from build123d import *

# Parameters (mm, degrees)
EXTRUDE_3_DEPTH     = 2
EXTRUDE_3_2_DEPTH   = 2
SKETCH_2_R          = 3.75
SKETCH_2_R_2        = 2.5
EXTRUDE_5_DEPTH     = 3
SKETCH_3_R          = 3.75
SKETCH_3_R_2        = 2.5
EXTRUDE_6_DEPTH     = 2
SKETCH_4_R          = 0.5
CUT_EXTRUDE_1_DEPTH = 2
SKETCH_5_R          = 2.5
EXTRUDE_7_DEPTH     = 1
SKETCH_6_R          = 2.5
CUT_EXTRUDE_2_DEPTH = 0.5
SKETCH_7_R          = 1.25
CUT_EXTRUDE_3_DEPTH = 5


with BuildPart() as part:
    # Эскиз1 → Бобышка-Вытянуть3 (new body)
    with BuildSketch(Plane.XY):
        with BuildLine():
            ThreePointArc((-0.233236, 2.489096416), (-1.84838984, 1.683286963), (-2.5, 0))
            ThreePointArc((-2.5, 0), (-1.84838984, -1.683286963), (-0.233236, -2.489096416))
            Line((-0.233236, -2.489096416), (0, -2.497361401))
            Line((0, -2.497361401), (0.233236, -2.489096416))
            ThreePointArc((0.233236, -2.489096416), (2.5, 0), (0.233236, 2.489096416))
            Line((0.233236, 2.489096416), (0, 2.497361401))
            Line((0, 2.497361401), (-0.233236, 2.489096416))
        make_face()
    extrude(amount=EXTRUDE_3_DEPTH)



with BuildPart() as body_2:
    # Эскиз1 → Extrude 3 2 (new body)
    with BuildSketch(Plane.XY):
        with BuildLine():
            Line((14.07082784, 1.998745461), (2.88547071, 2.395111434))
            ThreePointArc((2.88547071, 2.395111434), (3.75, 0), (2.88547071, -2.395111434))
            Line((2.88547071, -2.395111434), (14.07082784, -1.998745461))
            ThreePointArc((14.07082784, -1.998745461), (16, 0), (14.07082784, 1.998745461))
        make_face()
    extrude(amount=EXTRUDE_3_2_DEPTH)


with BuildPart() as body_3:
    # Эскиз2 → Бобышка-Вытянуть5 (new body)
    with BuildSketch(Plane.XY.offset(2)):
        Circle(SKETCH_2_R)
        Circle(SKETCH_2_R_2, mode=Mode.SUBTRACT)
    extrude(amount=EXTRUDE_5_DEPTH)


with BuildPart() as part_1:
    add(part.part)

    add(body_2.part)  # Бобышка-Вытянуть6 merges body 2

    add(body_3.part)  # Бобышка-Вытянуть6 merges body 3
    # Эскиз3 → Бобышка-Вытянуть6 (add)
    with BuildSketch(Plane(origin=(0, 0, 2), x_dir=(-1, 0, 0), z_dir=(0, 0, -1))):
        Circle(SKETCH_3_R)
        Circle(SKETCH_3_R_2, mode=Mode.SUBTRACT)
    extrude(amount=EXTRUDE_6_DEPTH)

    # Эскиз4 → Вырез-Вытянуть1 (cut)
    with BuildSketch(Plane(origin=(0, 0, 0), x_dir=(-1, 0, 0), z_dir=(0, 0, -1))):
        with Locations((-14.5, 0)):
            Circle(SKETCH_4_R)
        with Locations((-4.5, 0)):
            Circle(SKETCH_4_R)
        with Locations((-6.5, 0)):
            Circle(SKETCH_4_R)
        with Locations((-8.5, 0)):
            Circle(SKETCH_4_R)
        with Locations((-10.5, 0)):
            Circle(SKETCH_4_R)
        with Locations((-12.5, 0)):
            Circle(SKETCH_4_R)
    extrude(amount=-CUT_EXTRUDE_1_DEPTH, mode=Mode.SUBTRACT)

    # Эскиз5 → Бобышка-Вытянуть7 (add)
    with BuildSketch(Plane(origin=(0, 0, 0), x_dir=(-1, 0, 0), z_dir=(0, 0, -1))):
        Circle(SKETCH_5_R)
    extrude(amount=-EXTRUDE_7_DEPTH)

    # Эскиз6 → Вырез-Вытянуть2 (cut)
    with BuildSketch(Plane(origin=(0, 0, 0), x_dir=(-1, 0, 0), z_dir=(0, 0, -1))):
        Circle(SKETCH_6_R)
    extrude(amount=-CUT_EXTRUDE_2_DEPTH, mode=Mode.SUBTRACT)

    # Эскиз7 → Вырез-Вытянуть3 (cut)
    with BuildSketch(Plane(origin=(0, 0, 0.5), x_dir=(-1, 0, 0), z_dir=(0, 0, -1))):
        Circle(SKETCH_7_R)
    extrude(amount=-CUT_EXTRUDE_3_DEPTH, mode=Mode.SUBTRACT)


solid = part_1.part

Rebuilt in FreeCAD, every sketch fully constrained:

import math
import FreeCAD as App
import Part
import Sketcher
Q = App.Units.Quantity

doc = App.newDocument("Part")
body = doc.addObject("PartDesign::Body", "Body")

# Sketch on XY plane
sketch1 = doc.addObject("Sketcher::SketchObject", "Sketch")
body.addObject(sketch1)
sketch1.AttachmentSupport = (doc.XY_Plane, [""])
sketch1.MapMode = "FlatFace"
sketch1.addGeometry([
    Part.ArcOfCircle(Part.Circle(App.Vector(0, 0, 0), App.Vector(0, 0, 1), 2.5), math.radians(95), math.radians(180)),  # 0
    Part.ArcOfCircle(Part.Circle(App.Vector(0, 0, 0), App.Vector(0, 0, 1), 2.5), math.radians(180), math.radians(265)),  # 1
    Part.LineSegment(App.Vector(-0.23, -2.49, 0), App.Vector(0, -2.5, 0)),  # 2
    Part.LineSegment(App.Vector(0, -2.5, 0), App.Vector(0.23, -2.49, 0)),  # 3
    Part.ArcOfCircle(Part.Circle(App.Vector(0, 0, 0), App.Vector(0, 0, 1), 2.5), math.radians(-85), math.radians(85)),  # 4
    Part.LineSegment(App.Vector(0.23, 2.49, 0), App.Vector(0, 2.5, 0)),  # 5
    Part.LineSegment(App.Vector(0, 2.5, 0), App.Vector(-0.23, 2.49, 0)),  # 6
], False)
sketch1.addConstraint([
    Sketcher.Constraint("Tangent", 0, 2, 1, 1),
    Sketcher.Constraint("Coincident", 1, 2, 2, 1),
    Sketcher.Constraint("Coincident", 2, 2, 3, 1),
    Sketcher.Constraint("Coincident", 3, 2, 4, 1),
    Sketcher.Constraint("Coincident", 4, 2, 5, 1),
    Sketcher.Constraint("Coincident", 5, 2, 6, 1),
    Sketcher.Constraint("Coincident", 6, 2, 0, 1),
    Sketcher.Constraint("Coincident", 0, 3, -1, 1),
    Sketcher.Constraint("Coincident", 4, 3, -1, 1),
    Sketcher.Constraint("Equal", 0, 1),
    Sketcher.Constraint("Equal", 1, 4),
    Sketcher.Constraint("Symmetric", 2, 2, 5, 2, -1, 1),
    Sketcher.Constraint("PointOnObject", 0, 2, -1),
    Sketcher.Constraint("PointOnObject", 2, 2, -2),
    Sketcher.Constraint("Parallel", 2, 5),
    Sketcher.Constraint("Parallel", 3, 6),
    Sketcher.Constraint("Horizontal", 1, 2, 3, 2),
    Sketcher.Constraint("Radius", 0, Q("2.5 mm")),
    Sketcher.Constraint("DistanceY", 2, 2, -1, 1, Q("2.497361 mm")),
    Sketcher.Constraint("Distance", 2, Q("0.233382 mm")),
])
pad1 = doc.addObject("PartDesign::Pad", "Pad")
body.addObject(pad1)
pad1.Profile = sketch1
pad1.Length = 2
body2 = doc.addObject("PartDesign::Body", "Body001")

# Sketch on XY plane
sketch2 = doc.addObject("Sketcher::SketchObject", "Sketch001")
body2.addObject(sketch2)
sketch2.AttachmentSupport = (doc.getObject("XY_Plane001"), [""])
sketch2.MapMode = "FlatFace"
sketch2.addGeometry([
    Part.LineSegment(App.Vector(14.1, 2, 0), App.Vector(2.9, 2.4, 0)),
    Part.ArcOfCircle(Part.Circle(App.Vector(0, 0, 0), App.Vector(0, 0, 1), 3.8), math.radians(-40), math.radians(40)),
    Part.LineSegment(App.Vector(2.9, -2.4, 0), App.Vector(14.1, -2, 0)),
    Part.ArcOfCircle(Part.Circle(App.Vector(14, 0, 0), App.Vector(0, 0, 1), 2), math.radians(-88), math.radians(88)),
], False)
sketch2.addConstraint([
    Sketcher.Constraint("Coincident", 0, 2, 1, 2),
    Sketcher.Constraint("Coincident", 1, 1, 2, 1),
    Sketcher.Constraint("Tangent", 2, 2, 3, 1),
    Sketcher.Constraint("Tangent", 3, 2, 0, 1),
    Sketcher.Constraint("Coincident", 1, 3, -1, 1),
    Sketcher.Constraint("Symmetric", 2, 2, 3, 2, -1),
    Sketcher.Constraint("Radius", 3, Q("2 mm")),
    Sketcher.Constraint("Radius", 1, Q("3.75 mm")),
    Sketcher.Constraint("DistanceX", -1, 1, 3, 3, Q("14 mm")),
    Sketcher.Constraint("DistanceX", -1, 1, 0, 2, Q("2.885471 mm")),
])
pad2 = doc.addObject("PartDesign::Pad", "Pad001")
body2.addObject(pad2)
pad2.Profile = sketch2
pad2.Length = 2
body3 = doc.addObject("PartDesign::Body", "Body002")

# Sketch on XY plane
sketch3 = doc.addObject("Sketcher::SketchObject", "Sketch002")
body3.addObject(sketch3)
sketch3.AttachmentSupport = (doc.getObject("XY_Plane002"), [""])
sketch3.MapMode = "FlatFace"
sketch3.AttachmentOffset = App.Placement(App.Vector(0, 0, 2), App.Rotation())
sketch3.addGeometry([
    Part.Circle(App.Vector(0, 0, 0), App.Vector(0, 0, 1), 3.8),
    Part.Circle(App.Vector(0, 0, 0), App.Vector(0, 0, 1), 2.5),
], False)
sketch3.addConstraint([
    Sketcher.Constraint("Coincident", 0, 3, -1, 1),
    Sketcher.Constraint("Coincident", 1, 3, -1, 1),
    Sketcher.Constraint("Diameter", 1, Q("5 mm")),
    Sketcher.Constraint("Diameter", 0, Q("7.5 mm")),
])
pad3 = doc.addObject("PartDesign::Pad", "Pad002")
body3.addObject(pad3)
pad3.Profile = sketch3
pad3.Length = 3
body.AllowCompound = True
doc.recompute()

boolean = doc.addObject("PartDesign::Boolean", "Boolean")
body.addObject(boolean)
boolean.Type = "Fuse"
boolean.addObjects([body2])
doc.recompute()

boolean2 = doc.addObject("PartDesign::Boolean", "Boolean001")
body.addObject(boolean2)
boolean2.Type = "Fuse"
boolean2.addObjects([body3])

# Sketch on XY plane
sketch4 = doc.addObject("Sketcher::SketchObject", "Sketch003")
body.addObject(sketch4)
sketch4.AttachmentSupport = (doc.XY_Plane, [""])
sketch4.MapMode = "FlatFace"
sketch4.AttachmentOffset = App.Placement(App.Vector(0, 0, 2), App.Rotation())
sketch4.addGeometry([
    Part.Circle(App.Vector(0, 0, 0), App.Vector(0, 0, 1), 3.8),
    Part.Circle(App.Vector(0, 0, 0), App.Vector(0, 0, 1), 2.5),
], False)
sketch4.addConstraint([
    Sketcher.Constraint("Coincident", 0, 3, -1, 1),
    Sketcher.Constraint("Coincident", 1, 3, -1, 1),
    Sketcher.Constraint("Diameter", 1, Q("5 mm")),
    Sketcher.Constraint("Diameter", 0, Q("7.5 mm")),
])
pad4 = doc.addObject("PartDesign::Pad", "Pad003")
body.addObject(pad4)
pad4.Profile = sketch4
pad4.Length = 2
pad4.Reversed = True

# Sketch on XY plane
sketch5 = doc.addObject("Sketcher::SketchObject", "Sketch004")
body.addObject(sketch5)
sketch5.AttachmentSupport = (doc.XY_Plane, [""])
sketch5.MapMode = "FlatFace"
sketch5.addGeometry([
    Part.Circle(App.Vector(14.5, 0, 0), App.Vector(0, 0, 1), 0.5),  # 0
    Part.Circle(App.Vector(4.5, 0, 0), App.Vector(0, 0, 1), 0.5),  # 1
    Part.Circle(App.Vector(6.5, 0, 0), App.Vector(0, 0, 1), 0.5),  # 2
    Part.Circle(App.Vector(8.5, 0, 0), App.Vector(0, 0, 1), 0.5),  # 3
    Part.Circle(App.Vector(10.5, 0, 0), App.Vector(0, 0, 1), 0.5),  # 4
    Part.Circle(App.Vector(12.5, 0, 0), App.Vector(0, 0, 1), 0.5),  # 5
], False)
sketch5.addConstraint([
    Sketcher.Constraint("Equal", 0, 1),
    Sketcher.Constraint("Equal", 1, 2),
    Sketcher.Constraint("Equal", 2, 3),
    Sketcher.Constraint("Equal", 3, 4),
    Sketcher.Constraint("Equal", 4, 5),
    Sketcher.Constraint("PointOnObject", 0, 3, -1),
    Sketcher.Constraint("PointOnObject", 1, 3, -1),
    Sketcher.Constraint("PointOnObject", 2, 3, -1),
    Sketcher.Constraint("PointOnObject", 3, 3, -1),
    Sketcher.Constraint("PointOnObject", 4, 3, -1),
    Sketcher.Constraint("PointOnObject", 5, 3, -1),
    Sketcher.Constraint("Diameter", 0, Q("1 mm")),
    Sketcher.Constraint("DistanceX", 1, 3, 0, 3, Q("10 mm")),
    Sketcher.Constraint("DistanceX", 1, 3, 2, 3, Q("2 mm")),
    Sketcher.Constraint("DistanceX", 2, 3, 3, 3, Q("2 mm")),
    Sketcher.Constraint("DistanceX", 3, 3, 4, 3, Q("2 mm")),
    Sketcher.Constraint("DistanceX", 5, 3, 0, 3, Q("2 mm")),
    Sketcher.Constraint("DistanceX", -1, 1, 0, 3, Q("14.5 mm")),
])
pocket1 = doc.addObject("PartDesign::Pocket", "Pocket")
body.addObject(pocket1)
pocket1.Profile = sketch5
pocket1.Length = 2
pocket1.Reversed = True

# Sketch on XY plane
sketch6 = doc.addObject("Sketcher::SketchObject", "Sketch005")
body.addObject(sketch6)
sketch6.AttachmentSupport = (doc.XY_Plane, [""])
sketch6.MapMode = "FlatFace"
sketch6.addGeometry(Part.Circle(App.Vector(0, 0, 0), App.Vector(0, 0, 1), 2.5), False)
sketch6.addConstraint([
    Sketcher.Constraint("Coincident", 0, 3, -1, 1),
    Sketcher.Constraint("Diameter", 0, Q("5 mm")),
])
pad5 = doc.addObject("PartDesign::Pad", "Pad004")
body.addObject(pad5)
pad5.Profile = sketch6
pad5.Length = 1

# Sketch on XY plane
sketch7 = doc.addObject("Sketcher::SketchObject", "Sketch006")
body.addObject(sketch7)
sketch7.AttachmentSupport = (doc.XY_Plane, [""])
sketch7.MapMode = "FlatFace"
sketch7.addGeometry(Part.Circle(App.Vector(0, 0, 0), App.Vector(0, 0, 1), 2.5), False)
sketch7.addConstraint([
    Sketcher.Constraint("Coincident", 0, 3, -1, 1),
    Sketcher.Constraint("Diameter", 0, Q("5 mm")),
])
pocket2 = doc.addObject("PartDesign::Pocket", "Pocket001")
body.addObject(pocket2)
pocket2.Profile = sketch7
pocket2.Length = 0.5
pocket2.Reversed = True

# Sketch on XY plane
sketch8 = doc.addObject("Sketcher::SketchObject", "Sketch007")
body.addObject(sketch8)
sketch8.AttachmentSupport = (doc.XY_Plane, [""])
sketch8.MapMode = "FlatFace"
sketch8.AttachmentOffset = App.Placement(App.Vector(0, 0, 0.5), App.Rotation())
sketch8.addGeometry(Part.Circle(App.Vector(0, 0, 0), App.Vector(0, 0, 1), 1.2), False)
sketch8.addConstraint([
    Sketcher.Constraint("Coincident", 0, 3, -1, 1),
    Sketcher.Constraint("Diameter", 0, Q("2.5 mm")),
])
pocket3 = doc.addObject("PartDesign::Pocket", "Pocket002")
body.addObject(pocket3)
pocket3.Profile = sketch8
pocket3.Length = 5
pocket3.Reversed = True

doc.recompute()
